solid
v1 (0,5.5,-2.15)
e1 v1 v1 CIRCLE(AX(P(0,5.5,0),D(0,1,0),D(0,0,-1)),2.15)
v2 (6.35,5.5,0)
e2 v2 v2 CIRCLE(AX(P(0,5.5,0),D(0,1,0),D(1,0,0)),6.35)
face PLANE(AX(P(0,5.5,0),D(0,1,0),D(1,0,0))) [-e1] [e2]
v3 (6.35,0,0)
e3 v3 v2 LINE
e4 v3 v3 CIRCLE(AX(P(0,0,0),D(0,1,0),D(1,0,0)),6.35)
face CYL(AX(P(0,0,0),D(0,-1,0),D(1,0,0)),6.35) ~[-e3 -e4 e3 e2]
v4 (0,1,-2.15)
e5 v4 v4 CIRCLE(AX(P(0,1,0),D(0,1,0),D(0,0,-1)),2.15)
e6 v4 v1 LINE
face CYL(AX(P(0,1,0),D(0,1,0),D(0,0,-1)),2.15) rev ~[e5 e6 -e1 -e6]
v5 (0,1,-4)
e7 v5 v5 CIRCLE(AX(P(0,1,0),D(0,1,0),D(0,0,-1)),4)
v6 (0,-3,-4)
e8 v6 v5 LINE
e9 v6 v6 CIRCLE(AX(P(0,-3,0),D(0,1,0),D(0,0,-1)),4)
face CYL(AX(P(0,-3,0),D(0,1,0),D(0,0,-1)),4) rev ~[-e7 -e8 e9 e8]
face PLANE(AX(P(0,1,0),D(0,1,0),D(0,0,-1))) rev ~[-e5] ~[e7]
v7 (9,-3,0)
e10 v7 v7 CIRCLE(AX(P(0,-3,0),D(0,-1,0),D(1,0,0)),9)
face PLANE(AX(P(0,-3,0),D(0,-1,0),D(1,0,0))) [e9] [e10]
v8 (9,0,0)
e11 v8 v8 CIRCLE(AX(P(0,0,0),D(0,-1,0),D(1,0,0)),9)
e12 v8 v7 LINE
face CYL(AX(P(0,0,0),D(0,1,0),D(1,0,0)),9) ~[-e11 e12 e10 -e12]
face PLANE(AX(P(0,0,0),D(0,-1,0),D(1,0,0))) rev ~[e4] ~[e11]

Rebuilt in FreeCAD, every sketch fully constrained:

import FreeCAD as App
import Part
import Sketcher
from FreeCAD import Vector

doc = App.newDocument("Part")
body = doc.addObject("PartDesign::Body", "Body")

# Sketch on XZ plane
sketch1 = body.newObject("Sketcher::SketchObject", "Sketch")
sketch1.AttachmentSupport = (doc.getObject("XZ_Plane"), [""])
sketch1.MapMode = "FlatFace"
sketch1.addGeometry(Part.Circle(Vector(0, 0, 0), Vector(0, 0, 1), 6), False)
sketch1.addConstraint(Sketcher.Constraint("Coincident", 0, 3, -1, 1))
sketch1.addConstraint(Sketcher.Constraint("Diameter", 0, 12.7))
pad1 = body.newObject("PartDesign::Pad", "Pad")
pad1.Profile = sketch1
pad1.Length = 5.5
pad1.Reversed = True

# Sketch on XZ plane
sketch2 = body.newObject("Sketcher::SketchObject", "Sketch001")
sketch2.AttachmentSupport = (doc.getObject("XZ_Plane"), [""])
sketch2.MapMode = "FlatFace"
sketch2.addGeometry(Part.Circle(Vector(0, 0, 0), Vector(0, 0, 1), 9), False)
sketch2.addConstraint(Sketcher.Constraint("Coincident", 0, 3, -1, 1))
sketch2.addConstraint(Sketcher.Constraint("Diameter", 0, 18.0))
pad2 = body.newObject("PartDesign::Pad", "Pad001")
pad2.Profile = sketch2
pad2.Length = 3

# Sketch on XZ plane
sketch3 = body.newObject("Sketcher::SketchObject", "Sketch002")
sketch3.AttachmentSupport = (doc.getObject("XZ_Plane"), [""])
sketch3.MapMode = "FlatFace"
sketch3.AttachmentOffset = App.Placement(Vector(0, 0, 3), App.Rotation())
sketch3.addGeometry(Part.Circle(Vector(0, 0, 0), Vector(0, 0, 1), 2.1), False)
sketch3.addConstraint(Sketcher.Constraint("Coincident", 0, 3, -1, 1))
sketch3.addConstraint(Sketcher.Constraint("Diameter", 0, 4.3))
doc.recompute()
hole = body.newObject("PartDesign::Hole", "Hole")
hole.Profile = sketch3
hole.ThreadType = "None"
hole.Diameter = 4.3
hole.DepthType = "ThroughAll"
hole.HoleCutType = "Counterbore"
hole.HoleCutDiameter = 8
hole.HoleCutDepth = 4

doc.recompute()
